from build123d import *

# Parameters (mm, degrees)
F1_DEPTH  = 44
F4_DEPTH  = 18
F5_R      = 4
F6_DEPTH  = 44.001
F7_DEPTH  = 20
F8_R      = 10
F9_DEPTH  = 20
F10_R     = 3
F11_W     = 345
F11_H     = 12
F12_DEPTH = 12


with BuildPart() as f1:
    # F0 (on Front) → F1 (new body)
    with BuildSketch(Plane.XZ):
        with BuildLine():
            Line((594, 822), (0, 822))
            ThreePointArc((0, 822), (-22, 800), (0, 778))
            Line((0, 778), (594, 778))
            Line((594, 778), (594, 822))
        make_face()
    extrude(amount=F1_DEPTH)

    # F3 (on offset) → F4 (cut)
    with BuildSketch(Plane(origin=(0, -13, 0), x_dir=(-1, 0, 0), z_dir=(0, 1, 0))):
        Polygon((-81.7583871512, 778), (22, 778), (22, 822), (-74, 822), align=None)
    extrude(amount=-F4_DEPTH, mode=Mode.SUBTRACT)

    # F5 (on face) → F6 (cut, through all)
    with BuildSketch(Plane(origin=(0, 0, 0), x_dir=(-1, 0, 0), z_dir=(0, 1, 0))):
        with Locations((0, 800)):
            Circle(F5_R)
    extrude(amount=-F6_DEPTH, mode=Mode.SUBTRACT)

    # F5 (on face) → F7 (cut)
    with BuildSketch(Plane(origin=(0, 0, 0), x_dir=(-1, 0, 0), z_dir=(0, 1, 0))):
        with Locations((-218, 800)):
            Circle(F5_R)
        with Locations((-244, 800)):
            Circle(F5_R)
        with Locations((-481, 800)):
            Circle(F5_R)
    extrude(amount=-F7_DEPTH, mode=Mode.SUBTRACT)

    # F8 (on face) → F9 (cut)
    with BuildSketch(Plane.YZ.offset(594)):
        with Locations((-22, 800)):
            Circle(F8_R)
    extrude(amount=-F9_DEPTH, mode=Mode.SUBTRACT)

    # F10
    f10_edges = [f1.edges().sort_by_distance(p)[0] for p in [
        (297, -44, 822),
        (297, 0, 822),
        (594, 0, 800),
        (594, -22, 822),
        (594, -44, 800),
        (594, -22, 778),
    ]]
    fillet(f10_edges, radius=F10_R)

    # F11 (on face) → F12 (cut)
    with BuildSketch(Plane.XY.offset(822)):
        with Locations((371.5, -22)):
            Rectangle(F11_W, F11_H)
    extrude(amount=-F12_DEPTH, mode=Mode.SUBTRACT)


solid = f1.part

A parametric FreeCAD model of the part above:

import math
import FreeCAD as App
import Part
import Sketcher

V = App.Vector
Q = App.Units.Quantity


def edges_at(feature, points):
    """Names of the edges that pass closest to the given points."""
    edges = feature.Shape.Edges
    near = lambda p: min(range(len(edges)), key=lambda i: edges[i].distToShape(Part.Vertex(*p))[0])
    return sorted({f"Edge{near(p) + 1}" for p in points})

doc = App.newDocument("Part")
body = doc.addObject("PartDesign::Body", "Body")

sketch1 = body.newObject("Sketcher::SketchObject", "Sketch")
sketch1.AttachmentSupport = (doc.getObject("XZ_Plane"), [""])
sketch1.MapMode = "FlatFace"
sketch1.addGeometry([
    Part.LineSegment(V(594, 822, 0), V(0, 822, 0)),
    Part.ArcOfCircle(Part.Circle(V(0, 800, 0), V(0, 0, 1), 22), math.radians(90), math.radians(270)),
    Part.LineSegment(V(0, 778, 0), V(594, 778, 0)),
    Part.LineSegment(V(594, 778, 0), V(594, 822, 0)),
], False)
sketch1.addConstraint([
    Sketcher.Constraint("Tangent", 0, 2, 1, 1),
    Sketcher.Constraint("Tangent", 1, 2, 2, 1),
    Sketcher.Constraint("Coincident", 2, 2, 3, 1),
    Sketcher.Constraint("Coincident", 3, 2, 0, 1),
    Sketcher.Constraint("Horizontal", 0),
    Sketcher.Constraint("Horizontal", 2),
    Sketcher.Constraint("Vertical", 3),
    Sketcher.Constraint("PointOnObject", 1, 3, -2),
    Sketcher.Constraint("Radius", 1, 22.0),
    Sketcher.Constraint("DistanceX", 0, 2, 0, 1, 594.0),
    Sketcher.Constraint("DistanceY", -1, 1, 1, 3, 800.0),
])
pad1 = body.newObject("PartDesign::Pad", "Pad")
pad1.Profile = sketch1
pad1.Length = 44

sketch2 = body.newObject("Sketcher::SketchObject", "Sketch001")
sketch2.AttachmentSupport = (doc.getObject("XZ_Plane"), [""])
sketch2.MapMode = "FlatFace"
sketch2.AttachmentOffset = App.Placement(V(0, 0, 13), App.Rotation())
sketch2.addGeometry([
    Part.LineSegment(V(82, 778, 0), V(-22, 778, 0)),
    Part.LineSegment(V(-22, 778, 0), V(-22, 822, 0)),
    Part.LineSegment(V(-22, 822, 0), V(74, 822, 0)),
    Part.LineSegment(V(74, 822, 0), V(82, 778, 0)),
], False)
sketch2.addConstraint([
    Sketcher.Constraint("Coincident", 0, 2, 1, 1),
    Sketcher.Constraint("Coincident", 1, 2, 2, 1),
    Sketcher.Constraint("Coincident", 2, 2, 3, 1),
    Sketcher.Constraint("Coincident", 3, 2, 0, 1),
    Sketcher.Constraint("Horizontal", 0),
    Sketcher.Constraint("Vertical", 1),
    Sketcher.Constraint("Horizontal", 2),
    Sketcher.Constraint("DistanceX", 2, 1, 2, 2, 96.0),
    Sketcher.Constraint("DistanceY", 1, 1, 1, 2, 44.0),
    Sketcher.Constraint("Angle", 3, Q("-80 deg")),
    Sketcher.Constraint("DistanceX", 0, 2, -1, 1, 22.0),
    Sketcher.Constraint("DistanceY", -1, 1, 0, 2, 778.0),
])
pocket1 = body.newObject("PartDesign::Pocket", "Pocket")
pocket1.Profile = sketch2
pocket1.Length = 18
pocket1.Reversed = True

sketch3 = body.newObject("Sketcher::SketchObject", "Sketch002")
sketch3.AttachmentSupport = (doc.getObject("XZ_Plane"), [""])
sketch3.MapMode = "FlatFace"
sketch3.addGeometry(Part.Circle(V(0, 800, 0), V(0, 0, 1), 4), False)
sketch3.addConstraint([
    Sketcher.Constraint("PointOnObject", 0, 3, -2),
    Sketcher.Constraint("Diameter", 0, 8.0),
    Sketcher.Constraint("DistanceY", -1, 1, 0, 3, 800.0),
])
pocket2 = body.newObject("PartDesign::Pocket", "Pocket001")
pocket2.Profile = sketch3
pocket2.Type = "ThroughAll"
pocket2.Reversed = True

sketch4 = body.newObject("Sketcher::SketchObject", "Sketch003")
sketch4.AttachmentSupport = (doc.getObject("XZ_Plane"), [""])
sketch4.MapMode = "FlatFace"
sketch4.addGeometry([
    Part.Circle(V(218, 800, 0), V(0, 0, 1), 4),
    Part.Circle(V(244, 800, 0), V(0, 0, 1), 4),
    Part.Circle(V(481, 800, 0), V(0, 0, 1), 4),
], False)
sketch4.addConstraint([
    Sketcher.Constraint("Equal", 0, 1),
    Sketcher.Constraint("Equal", 1, 2),
    Sketcher.Constraint("Horizontal", 0, 3, 1, 3),
    Sketcher.Constraint("Horizontal", 1, 3, 2, 3),
    Sketcher.Constraint("Diameter", 0, 8.0),
    Sketcher.Constraint("DistanceX", -1, 1, 0, 3, 218.0),
    Sketcher.Constraint("DistanceY", -1, 1, 0, 3, 800.0),
    Sketcher.Constraint("DistanceX", -1, 1, 1, 3, 244.0),
    Sketcher.Constraint("DistanceX", -1, 1, 2, 3, 481.0),
])
pocket3 = body.newObject("PartDesign::Pocket", "Pocket002")
pocket3.Profile = sketch4
pocket3.Length = 20
pocket3.Reversed = True

sketch5 = body.newObject("Sketcher::SketchObject", "Sketch004")
sketch5.AttachmentSupport = (doc.getObject("YZ_Plane"), [""])
sketch5.MapMode = "FlatFace"
sketch5.AttachmentOffset = App.Placement(V(0, 0, 594), App.Rotation())
sketch5.addGeometry(Part.Circle(V(-22, 800, 0), V(0, 0, 1), 10), False)
sketch5.addConstraint([
    Sketcher.Constraint("Diameter", 0, 20.0),
    Sketcher.Constraint("DistanceX", 0, 3, -1, 1, 22.0),
    Sketcher.Constraint("DistanceY", -1, 1, 0, 3, 800.0),
])
pocket4 = body.newObject("PartDesign::Pocket", "Pocket003")
pocket4.Profile = sketch5
pocket4.Length = 20
doc.recompute()

fillet = body.newObject("PartDesign::Fillet", "Fillet")
fillet.Base = (pocket4, edges_at(pocket4, [
    (297, -44, 822),
    (297, 0, 822),
    (594, 0, 800),
    (594, -22, 822),
    (594, -44, 800),
    (594, -22, 778),
]))
fillet.Radius = 3

sketch6 = body.newObject("Sketcher::SketchObject", "Sketch005")
sketch6.AttachmentSupport = (doc.getObject("XY_Plane"), [""])
sketch6.MapMode = "FlatFace"
sketch6.AttachmentOffset = App.Placement(V(0, 0, 822), App.Rotation())
sketch6.addGeometry([
    Part.LineSegment(V(199, -16, 0), V(199, -28, 0)),
    Part.LineSegment(V(199, -28, 0), V(544, -28, 0)),
    Part.LineSegment(V(544, -28, 0), V(544, -16, 0)),
    Part.LineSegment(V(544, -16, 0), V(199, -16, 0)),
], False)
sketch6.addConstraint([
    Sketcher.Constraint("Coincident", 0, 2, 1, 1),
    Sketcher.Constraint("Coincident", 1, 2, 2, 1),
    Sketcher.Constraint("Coincident", 2, 2, 3, 1),
    Sketcher.Constraint("Coincident", 3, 2, 0, 1),
    Sketcher.Constraint("Vertical", 0),
    Sketcher.Constraint("Horizontal", 1),
    Sketcher.Constraint("Vertical", 2),
    Sketcher.Constraint("Horizontal", 3),
    Sketcher.Constraint("DistanceX", 1, 1, 1, 2, 345.0),
    Sketcher.Constraint("DistanceY", 0, 2, 0, 1, 12.0),
    Sketcher.Constraint("DistanceX", -1, 1, 0, 2, 199.0),
    Sketcher.Constraint("DistanceY", 0, 2, -1, 1, 28.0),
])
pocket5 = body.newObject("PartDesign::Pocket", "Pocket004")
pocket5.Profile = sketch6
pocket5.Length = 12

doc.recompute()
